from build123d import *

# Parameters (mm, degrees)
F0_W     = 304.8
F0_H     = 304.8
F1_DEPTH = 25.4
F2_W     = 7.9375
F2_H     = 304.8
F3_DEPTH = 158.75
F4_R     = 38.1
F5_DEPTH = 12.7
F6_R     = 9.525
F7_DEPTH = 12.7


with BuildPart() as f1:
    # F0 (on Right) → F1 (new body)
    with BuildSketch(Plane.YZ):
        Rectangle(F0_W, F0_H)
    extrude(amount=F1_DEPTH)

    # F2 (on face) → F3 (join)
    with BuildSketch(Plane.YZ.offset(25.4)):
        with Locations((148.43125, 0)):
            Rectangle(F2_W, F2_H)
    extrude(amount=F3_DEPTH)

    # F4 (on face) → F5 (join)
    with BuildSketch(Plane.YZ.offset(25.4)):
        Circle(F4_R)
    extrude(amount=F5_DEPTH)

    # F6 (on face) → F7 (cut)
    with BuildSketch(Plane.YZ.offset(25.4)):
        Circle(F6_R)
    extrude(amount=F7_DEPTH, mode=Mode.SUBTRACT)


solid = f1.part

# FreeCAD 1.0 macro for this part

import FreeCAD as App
import Part
import Sketcher

V = App.Vector
Q = App.Units.Quantity


def add_polygon(sketch, points):
    """Adds a closed chain of lines whose ends are joined by coincident constraints."""
    first, n = sketch.GeometryCount, len(points)
    for a, b in zip(points, points[1:] + points[:1]):
        sketch.addGeometry(Part.LineSegment(App.Vector(*a, 0), App.Vector(*b, 0)), False)
    for i in range(n):
        sketch.addConstraint(Sketcher.Constraint("Coincident", first + i, 2, first + (i + 1) % n, 1))

doc = App.newDocument("Part")
body = doc.addObject("PartDesign::Body", "Body")

# Sketch on YZ plane
sketch1 = doc.addObject("Sketcher::SketchObject", "Sketch")
body.addObject(sketch1)
sketch1.AttachmentSupport = (doc.YZ_Plane, [""])
sketch1.MapMode = "FlatFace"
add_polygon(sketch1, [(-152, 152), (-152, -152), (152, -152), (152, 152)])  # lines 0-3
sketch1.addConstraint([
    Sketcher.Constraint("Vertical", 0),
    Sketcher.Constraint("Horizontal", 1),
    Sketcher.Constraint("Vertical", 2),
    Sketcher.Constraint("Horizontal", 3),
    Sketcher.Constraint("Symmetric", 0, 2, 2, 2, -1, 1),
    Sketcher.Constraint("Equal", 3, 0),
    Sketcher.Constraint("DistanceX", 1, 1, 1, 2, Q("12 in")),
])
pad1 = doc.addObject("PartDesign::Pad", "Pad")
body.addObject(pad1)
pad1.Profile = sketch1
pad1.Length = Q("1 in")

# Sketch on YZ plane
sketch2 = doc.addObject("Sketcher::SketchObject", "Sketch001")
body.addObject(sketch2)
sketch2.AttachmentSupport = (doc.YZ_Plane, [""])
sketch2.MapMode = "FlatFace"
sketch2.AttachmentOffset = App.Placement(V(0, 0, 1 * 25.4), App.Rotation())
add_polygon(sketch2, [(144, 152), (144, -152), (152, -152), (152, 152)])  # lines 0-3
sketch2.addConstraint([
    Sketcher.Constraint("Vertical", 0),
    Sketcher.Constraint("Horizontal", 1),
    Sketcher.Constraint("Vertical", 2),
    Sketcher.Constraint("Horizontal", 3),
    Sketcher.Constraint("DistanceY", 0, 2, 0, 1, Q("12 in")),
    Sketcher.Constraint("DistanceY", 0, 2, -1, 1, Q("6 in")),
    Sketcher.Constraint("DistanceX", -1, 1, 1, 2, Q("6 in")),
    Sketcher.Constraint("DistanceX", 1, 1, 1, 2, Q("0.3125 in")),
])
pad2 = doc.addObject("PartDesign::Pad", "Pad001")
body.addObject(pad2)
pad2.Profile = sketch2
pad2.Length = Q("6.25 in")

# Sketch on YZ plane
sketch3 = doc.addObject("Sketcher::SketchObject", "Sketch002")
body.addObject(sketch3)
sketch3.AttachmentSupport = (doc.YZ_Plane, [""])
sketch3.MapMode = "FlatFace"
sketch3.AttachmentOffset = App.Placement(V(0, 0, 1 * 25.4), App.Rotation())
sketch3.addGeometry(Part.Circle(V(0, 0, 0), V(0, 0, 1), 38), False)
sketch3.addConstraint([
    Sketcher.Constraint("Coincident", 0, 3, -1, 1),
    Sketcher.Constraint("Diameter", 0, Q("3 in")),
])
pad3 = doc.addObject("PartDesign::Pad", "Pad002")
body.addObject(pad3)
pad3.Profile = sketch3
pad3.Length = Q("0.5 in")

# Sketch on YZ plane
sketch4 = doc.addObject("Sketcher::SketchObject", "Sketch003")
body.addObject(sketch4)
sketch4.AttachmentSupport = (doc.YZ_Plane, [""])
sketch4.MapMode = "FlatFace"
sketch4.AttachmentOffset = App.Placement(V(0, 0, 1 * 25.4), App.Rotation())
sketch4.addGeometry(Part.Circle(V(0, 0, 0), V(0, 0, 1), 10), False)
sketch4.addConstraint([
    Sketcher.Constraint("Coincident", 0, 3, -1, 1),
    Sketcher.Constraint("Diameter", 0, Q("0.75 in")),
])
pocket1 = doc.addObject("PartDesign::Pocket", "Pocket")
body.addObject(pocket1)
pocket1.Profile = sketch4
pocket1.Length = Q("0.5 in")
pocket1.Reversed = True

doc.recompute()
